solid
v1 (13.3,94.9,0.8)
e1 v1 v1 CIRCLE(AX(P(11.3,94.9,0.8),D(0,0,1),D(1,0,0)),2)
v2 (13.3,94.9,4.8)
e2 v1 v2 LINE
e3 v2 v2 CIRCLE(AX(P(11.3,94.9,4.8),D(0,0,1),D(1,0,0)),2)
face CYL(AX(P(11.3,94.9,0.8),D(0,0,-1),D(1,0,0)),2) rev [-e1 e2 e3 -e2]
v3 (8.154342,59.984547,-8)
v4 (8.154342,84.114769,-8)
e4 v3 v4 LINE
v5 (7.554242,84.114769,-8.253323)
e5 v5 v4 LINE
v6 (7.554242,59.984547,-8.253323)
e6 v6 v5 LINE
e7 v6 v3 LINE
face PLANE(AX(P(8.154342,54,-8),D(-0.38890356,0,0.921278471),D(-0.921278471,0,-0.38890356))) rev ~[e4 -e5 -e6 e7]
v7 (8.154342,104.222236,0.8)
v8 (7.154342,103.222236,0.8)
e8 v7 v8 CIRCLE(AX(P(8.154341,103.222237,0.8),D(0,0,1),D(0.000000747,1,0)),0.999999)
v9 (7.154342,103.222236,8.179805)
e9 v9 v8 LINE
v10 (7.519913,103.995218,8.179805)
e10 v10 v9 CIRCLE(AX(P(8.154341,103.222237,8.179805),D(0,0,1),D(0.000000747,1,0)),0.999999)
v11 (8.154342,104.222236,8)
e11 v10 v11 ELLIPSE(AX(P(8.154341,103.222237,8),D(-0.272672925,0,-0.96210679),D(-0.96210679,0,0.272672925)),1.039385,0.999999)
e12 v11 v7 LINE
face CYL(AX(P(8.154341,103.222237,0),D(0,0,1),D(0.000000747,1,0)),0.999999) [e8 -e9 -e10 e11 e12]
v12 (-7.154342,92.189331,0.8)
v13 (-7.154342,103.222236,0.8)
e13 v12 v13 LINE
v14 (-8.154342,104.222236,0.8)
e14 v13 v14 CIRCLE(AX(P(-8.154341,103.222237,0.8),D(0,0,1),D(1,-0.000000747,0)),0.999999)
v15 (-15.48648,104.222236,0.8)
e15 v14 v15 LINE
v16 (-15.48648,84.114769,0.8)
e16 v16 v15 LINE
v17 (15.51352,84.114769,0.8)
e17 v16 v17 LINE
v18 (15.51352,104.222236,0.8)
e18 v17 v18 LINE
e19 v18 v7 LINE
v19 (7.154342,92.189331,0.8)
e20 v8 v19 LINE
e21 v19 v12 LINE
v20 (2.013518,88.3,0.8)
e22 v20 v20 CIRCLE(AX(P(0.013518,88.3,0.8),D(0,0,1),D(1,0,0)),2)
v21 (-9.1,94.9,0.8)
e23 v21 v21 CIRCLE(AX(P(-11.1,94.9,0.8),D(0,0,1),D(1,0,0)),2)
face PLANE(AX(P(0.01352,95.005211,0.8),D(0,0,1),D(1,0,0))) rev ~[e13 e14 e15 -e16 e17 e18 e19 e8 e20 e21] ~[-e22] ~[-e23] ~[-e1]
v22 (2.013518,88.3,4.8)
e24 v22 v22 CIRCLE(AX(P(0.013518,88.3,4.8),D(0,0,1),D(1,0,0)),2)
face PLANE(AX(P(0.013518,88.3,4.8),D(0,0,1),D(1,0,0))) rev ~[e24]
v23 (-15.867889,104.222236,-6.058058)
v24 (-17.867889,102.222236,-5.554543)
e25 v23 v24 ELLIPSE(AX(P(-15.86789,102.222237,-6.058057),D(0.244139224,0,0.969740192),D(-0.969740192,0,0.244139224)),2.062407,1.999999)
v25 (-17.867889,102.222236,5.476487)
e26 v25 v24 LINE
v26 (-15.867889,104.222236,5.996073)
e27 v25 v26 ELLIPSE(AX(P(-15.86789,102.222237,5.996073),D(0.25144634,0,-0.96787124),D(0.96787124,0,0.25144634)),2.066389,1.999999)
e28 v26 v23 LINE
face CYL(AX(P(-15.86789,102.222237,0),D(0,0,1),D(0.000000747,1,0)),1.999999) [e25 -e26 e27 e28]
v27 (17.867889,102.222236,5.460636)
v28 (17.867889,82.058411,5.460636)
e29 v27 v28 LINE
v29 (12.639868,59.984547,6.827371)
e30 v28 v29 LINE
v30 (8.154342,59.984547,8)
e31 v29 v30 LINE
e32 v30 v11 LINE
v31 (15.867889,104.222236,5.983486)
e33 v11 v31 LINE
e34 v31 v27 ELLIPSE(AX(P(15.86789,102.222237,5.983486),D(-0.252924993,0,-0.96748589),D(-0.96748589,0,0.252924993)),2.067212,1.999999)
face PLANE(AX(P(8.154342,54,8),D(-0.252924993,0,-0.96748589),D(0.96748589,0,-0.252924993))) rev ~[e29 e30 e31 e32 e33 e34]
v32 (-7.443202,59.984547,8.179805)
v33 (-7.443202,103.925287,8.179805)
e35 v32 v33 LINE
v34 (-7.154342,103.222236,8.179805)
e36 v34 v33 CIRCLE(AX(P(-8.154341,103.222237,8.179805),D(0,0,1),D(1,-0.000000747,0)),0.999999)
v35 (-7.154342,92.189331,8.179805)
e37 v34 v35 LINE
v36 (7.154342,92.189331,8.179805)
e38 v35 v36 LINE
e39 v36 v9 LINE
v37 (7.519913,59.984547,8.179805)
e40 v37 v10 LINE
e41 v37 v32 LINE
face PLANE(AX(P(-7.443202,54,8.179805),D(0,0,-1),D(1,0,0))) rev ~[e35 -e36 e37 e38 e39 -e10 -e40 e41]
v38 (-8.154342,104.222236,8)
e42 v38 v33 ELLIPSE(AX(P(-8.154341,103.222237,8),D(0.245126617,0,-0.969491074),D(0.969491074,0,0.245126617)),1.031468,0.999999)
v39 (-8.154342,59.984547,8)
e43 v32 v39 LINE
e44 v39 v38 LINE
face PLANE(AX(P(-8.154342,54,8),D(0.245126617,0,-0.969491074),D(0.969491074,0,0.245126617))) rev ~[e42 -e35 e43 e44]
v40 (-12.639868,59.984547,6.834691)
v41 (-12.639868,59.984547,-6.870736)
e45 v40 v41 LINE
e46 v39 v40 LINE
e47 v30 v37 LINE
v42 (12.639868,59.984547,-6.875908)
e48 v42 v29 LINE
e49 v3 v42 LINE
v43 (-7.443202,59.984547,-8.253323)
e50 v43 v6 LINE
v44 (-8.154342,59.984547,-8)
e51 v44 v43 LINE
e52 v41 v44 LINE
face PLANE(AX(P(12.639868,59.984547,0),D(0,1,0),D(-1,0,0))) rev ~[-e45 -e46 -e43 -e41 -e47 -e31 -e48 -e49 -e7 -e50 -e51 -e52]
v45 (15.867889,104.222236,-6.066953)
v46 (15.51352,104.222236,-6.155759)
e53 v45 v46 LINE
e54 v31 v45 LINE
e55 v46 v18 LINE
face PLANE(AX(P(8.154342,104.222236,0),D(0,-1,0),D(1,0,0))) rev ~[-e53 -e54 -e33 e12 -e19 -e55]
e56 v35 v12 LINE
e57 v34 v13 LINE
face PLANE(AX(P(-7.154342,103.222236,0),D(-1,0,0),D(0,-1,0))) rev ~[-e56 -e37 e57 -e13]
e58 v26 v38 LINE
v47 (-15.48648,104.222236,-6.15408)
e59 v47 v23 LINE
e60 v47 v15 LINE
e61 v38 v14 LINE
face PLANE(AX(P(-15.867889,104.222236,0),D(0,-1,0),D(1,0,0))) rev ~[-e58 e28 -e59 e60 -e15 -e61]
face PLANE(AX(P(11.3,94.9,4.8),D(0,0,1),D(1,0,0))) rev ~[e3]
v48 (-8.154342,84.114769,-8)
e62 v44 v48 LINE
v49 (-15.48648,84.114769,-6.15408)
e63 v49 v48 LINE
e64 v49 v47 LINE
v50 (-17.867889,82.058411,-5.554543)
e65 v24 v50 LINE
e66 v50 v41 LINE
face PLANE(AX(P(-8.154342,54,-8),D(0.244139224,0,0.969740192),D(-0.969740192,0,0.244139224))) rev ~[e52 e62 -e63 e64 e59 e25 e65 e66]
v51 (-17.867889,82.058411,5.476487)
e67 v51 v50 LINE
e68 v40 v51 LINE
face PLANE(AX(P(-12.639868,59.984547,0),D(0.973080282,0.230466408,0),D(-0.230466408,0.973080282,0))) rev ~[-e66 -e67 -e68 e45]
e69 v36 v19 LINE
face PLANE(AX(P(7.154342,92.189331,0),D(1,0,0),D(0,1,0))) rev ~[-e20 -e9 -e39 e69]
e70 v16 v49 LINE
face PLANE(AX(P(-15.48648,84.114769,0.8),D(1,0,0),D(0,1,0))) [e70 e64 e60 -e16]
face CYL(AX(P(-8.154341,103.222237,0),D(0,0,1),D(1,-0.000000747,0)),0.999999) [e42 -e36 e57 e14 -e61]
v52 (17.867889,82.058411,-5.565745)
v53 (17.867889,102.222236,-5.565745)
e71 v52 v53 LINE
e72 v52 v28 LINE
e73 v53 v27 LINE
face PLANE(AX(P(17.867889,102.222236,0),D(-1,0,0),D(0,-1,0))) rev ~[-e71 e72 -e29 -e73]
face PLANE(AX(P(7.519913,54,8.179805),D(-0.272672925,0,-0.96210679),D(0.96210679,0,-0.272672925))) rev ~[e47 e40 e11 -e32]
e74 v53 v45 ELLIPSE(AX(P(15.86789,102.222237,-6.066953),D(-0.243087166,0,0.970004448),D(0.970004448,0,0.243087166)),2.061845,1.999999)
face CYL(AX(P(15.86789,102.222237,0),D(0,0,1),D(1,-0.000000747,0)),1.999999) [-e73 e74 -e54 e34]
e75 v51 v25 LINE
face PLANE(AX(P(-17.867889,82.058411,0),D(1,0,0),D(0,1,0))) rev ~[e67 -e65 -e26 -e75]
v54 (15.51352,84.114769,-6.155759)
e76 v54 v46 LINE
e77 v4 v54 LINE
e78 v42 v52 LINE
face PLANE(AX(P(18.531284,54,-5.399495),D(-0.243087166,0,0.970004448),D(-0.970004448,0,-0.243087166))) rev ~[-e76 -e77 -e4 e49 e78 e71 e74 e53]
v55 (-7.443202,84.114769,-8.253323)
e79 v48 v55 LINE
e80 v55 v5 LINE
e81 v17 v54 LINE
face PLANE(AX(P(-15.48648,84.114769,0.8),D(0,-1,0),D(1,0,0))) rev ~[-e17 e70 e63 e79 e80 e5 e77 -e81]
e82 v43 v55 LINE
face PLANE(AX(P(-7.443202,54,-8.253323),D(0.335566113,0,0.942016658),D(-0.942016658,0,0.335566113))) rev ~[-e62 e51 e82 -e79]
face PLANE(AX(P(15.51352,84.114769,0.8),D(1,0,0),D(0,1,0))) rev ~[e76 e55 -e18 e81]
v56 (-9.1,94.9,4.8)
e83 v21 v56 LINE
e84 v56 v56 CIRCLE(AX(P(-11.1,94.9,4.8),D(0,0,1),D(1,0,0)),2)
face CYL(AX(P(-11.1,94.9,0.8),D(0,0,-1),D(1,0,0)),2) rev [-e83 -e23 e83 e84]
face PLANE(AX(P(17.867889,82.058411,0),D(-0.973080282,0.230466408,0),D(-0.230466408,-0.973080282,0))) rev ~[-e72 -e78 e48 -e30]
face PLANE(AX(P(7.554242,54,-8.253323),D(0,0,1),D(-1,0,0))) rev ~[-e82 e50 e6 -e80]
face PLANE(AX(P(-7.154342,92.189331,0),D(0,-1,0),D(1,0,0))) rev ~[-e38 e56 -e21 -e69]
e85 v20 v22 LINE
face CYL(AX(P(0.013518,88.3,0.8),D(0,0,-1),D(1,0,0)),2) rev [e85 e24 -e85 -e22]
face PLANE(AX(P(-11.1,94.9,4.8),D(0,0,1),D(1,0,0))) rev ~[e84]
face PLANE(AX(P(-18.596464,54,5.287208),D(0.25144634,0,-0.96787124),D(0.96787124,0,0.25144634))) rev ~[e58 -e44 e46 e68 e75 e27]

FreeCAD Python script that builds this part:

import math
import FreeCAD as App
import Part
import Sketcher

V = App.Vector


def add_polygon(sketch, points):
    """Adds a closed chain of lines whose ends are joined by coincident constraints."""
    first, n = sketch.GeometryCount, len(points)
    for a, b in zip(points, points[1:] + points[:1]):
        sketch.addGeometry(Part.LineSegment(App.Vector(*a, 0), App.Vector(*b, 0)), False)
    for i in range(n):
        sketch.addConstraint(Sketcher.Constraint("Coincident", first + i, 2, first + (i + 1) % n, 1))

doc = App.newDocument("Part")
body = doc.addObject("PartDesign::Body", "Body")

# Sketch on XY plane
sketch1 = body.newObject("Sketcher::SketchObject", "Sketch")
sketch1.AttachmentSupport = (doc.getObject("XY_Plane"), [""])
sketch1.MapMode = "FlatFace"
sketch1.addGeometry(Part.LineSegment(V(-12.6, 60, 0), V(12.6, 60, 0)), False)
sketch1.addGeometry(Part.LineSegment(V(12.6, 60, 0), V(17.9, 82.1, 0)), False)
sketch1.addGeometry(Part.LineSegment(V(17.9, 82.1, 0), V(17.9, 102.2, 0)), False)
sketch1.addGeometry(Part.ArcOfCircle(Part.Circle(V(15.9, 102.2, 0), V(0, 0, 1), 2), math.radians(0), math.radians(90)), False)
sketch1.addGeometry(Part.LineSegment(V(15.9, 104.2, 0), V(8.2, 104.2, 0)), False)
sketch1.addGeometry(Part.ArcOfCircle(Part.Circle(V(8.2, 103.2, 0), V(0, 0, 1), 1), math.radians(90), math.radians(180)), False)
sketch1.addGeometry(Part.LineSegment(V(7.2, 103.2, 0), V(7.2, 92.2, 0)), False)
sketch1.addGeometry(Part.LineSegment(V(7.2, 92.2, 0), V(-7.2, 92.2, 0)), False)
sketch1.addGeometry(Part.LineSegment(V(-7.2, 92.2, 0), V(-7.2, 103.2, 0)), False)
sketch1.addGeometry(Part.ArcOfCircle(Part.Circle(V(-8.2, 103.2, 0), V(0, 0, 1), 1), math.radians(0), math.radians(90)), False)
sketch1.addGeometry(Part.LineSegment(V(-8.2, 104.2, 0), V(-15.9, 104.2, 0)), False)
sketch1.addGeometry(Part.ArcOfCircle(Part.Circle(V(-15.9, 102.2, 0), V(0, 0, 1), 2), math.radians(90), math.radians(180)), False)
sketch1.addGeometry(Part.LineSegment(V(-17.9, 102.2, 0), V(-17.9, 82.1, 0)), False)
sketch1.addGeometry(Part.LineSegment(V(-17.9, 82.1, 0), V(-12.6, 60, 0)), False)
sketch1.addConstraint(Sketcher.Constraint("Coincident", 0, 2, 1, 1))
sketch1.addConstraint(Sketcher.Constraint("Coincident", 1, 2, 2, 1))
sketch1.addConstraint(Sketcher.Constraint("Tangent", 2, 2, 3, 1))
sketch1.addConstraint(Sketcher.Constraint("Tangent", 3, 2, 4, 1))
sketch1.addConstraint(Sketcher.Constraint("Tangent", 4, 2, 5, 1))
sketch1.addConstraint(Sketcher.Constraint("Tangent", 5, 2, 6, 1))
sketch1.addConstraint(Sketcher.Constraint("Coincident", 6, 2, 7, 1))
sketch1.addConstraint(Sketcher.Constraint("Coincident", 7, 2, 8, 1))
sketch1.addConstraint(Sketcher.Constraint("Tangent", 8, 2, 9, 1))
sketch1.addConstraint(Sketcher.Constraint("Tangent", 9, 2, 10, 1))
sketch1.addConstraint(Sketcher.Constraint("Tangent", 10, 2, 11, 1))
sketch1.addConstraint(Sketcher.Constraint("Tangent", 11, 2, 12, 1))
sketch1.addConstraint(Sketcher.Constraint("Coincident", 12, 2, 13, 1))
sketch1.addConstraint(Sketcher.Constraint("Coincident", 13, 2, 0, 1))
sketch1.addConstraint(Sketcher.Constraint("Horizontal", 0))
sketch1.addConstraint(Sketcher.Constraint("Vertical", 2))
sketch1.addConstraint(Sketcher.Constraint("Horizontal", 4))
sketch1.addConstraint(Sketcher.Constraint("Vertical", 6))
sketch1.addConstraint(Sketcher.Constraint("Horizontal", 7))
sketch1.addConstraint(Sketcher.Constraint("Vertical", 8))
sketch1.addConstraint(Sketcher.Constraint("Horizontal", 10))
sketch1.addConstraint(Sketcher.Constraint("Vertical", 12))
sketch1.addConstraint(Sketcher.Constraint("Equal", 5, 9))
sketch1.addConstraint(Sketcher.Constraint("Equal", 3, 11))
sketch1.addConstraint(Sketcher.Constraint("Symmetric", 5, 3, 9, 3, -2))
sketch1.addConstraint(Sketcher.Constraint("Symmetric", 1, 2, 12, 2, -2))
sketch1.addConstraint(Sketcher.Constraint("Equal", 1, 13))
sketch1.addConstraint(Sketcher.Constraint("Radius", 3, 1.999999))
sketch1.addConstraint(Sketcher.Constraint("Radius", 5, 0.999999))
sketch1.addConstraint(Sketcher.Constraint("DistanceX", 0, 1, 0, 2, 25.279736))
sketch1.addConstraint(Sketcher.Constraint("DistanceX", 4, 2, 4, 1, 7.713547))
sketch1.addConstraint(Sketcher.Constraint("DistanceX", 7, 2, 7, 1, 14.308684))
sketch1.addConstraint(Sketcher.Constraint("DistanceY", 2, 1, 2, 2, 20.163825))
sketch1.addConstraint(Sketcher.Constraint("DistanceY", 6, 2, 6, 1, 11.032905))
sketch1.addConstraint(Sketcher.Constraint("DistanceY", -1, 1, 1, 2, 82.058411))
sketch1.addConstraint(Sketcher.Constraint("DistanceY", 0, 2, 3, 3, 42.23769))
pad1 = body.newObject("PartDesign::Pad", "Pad")
pad1.Profile = sketch1
pad1.Length = 24
pad1.Midplane = True

# Sketch on XZ plane
sketch2 = body.newObject("Sketcher::SketchObject", "Sketch001")
sketch2.AttachmentSupport = (doc.getObject("XZ_Plane"), [""])
sketch2.MapMode = "FlatFace"
sketch2.AttachmentOffset = App.Placement(V(0, 0, -54), App.Rotation())
add_polygon(sketch2, [(-22.1, 13.8), (-22.1, -17.7), (22.7, -17.7), (22.7, 13.8)])  # lines 0-3
add_polygon(sketch2, [(-18.6, -5.4), (-18.6, 5.3), (-8.2, 8), (-7.4, 8.2), (7.5, 8.2), (8.2, 8), (18.5, 5.3), (18.5, -5.4), (8.2, -8), (7.6, -8.3), (-7.4, -8.3), (-8.2, -8)])  # lines 4-15
sketch2.addConstraint(Sketcher.Constraint("Vertical", 0))
sketch2.addConstraint(Sketcher.Constraint("Horizontal", 1))
sketch2.addConstraint(Sketcher.Constraint("Vertical", 2))
sketch2.addConstraint(Sketcher.Constraint("Horizontal", 3))
sketch2.addConstraint(Sketcher.Constraint("Vertical", 4))
sketch2.addConstraint(Sketcher.Constraint("Horizontal", 7))
sketch2.addConstraint(Sketcher.Constraint("Vertical", 10))
sketch2.addConstraint(Sketcher.Constraint("Horizontal", 13))
sketch2.addConstraint(Sketcher.Constraint("Symmetric", 5, 2, 11, 2, -1, 1))
sketch2.addConstraint(Sketcher.Constraint("Symmetric", 8, 2, 14, 2, -1, 1))
sketch2.addConstraint(Sketcher.Constraint("Symmetric", 5, 2, 8, 2, -2))
sketch2.addConstraint(Sketcher.Constraint("Horizontal", 4, 2, 9, 2))
sketch2.addConstraint(Sketcher.Constraint("Vertical", 6, 2, 13, 2))
sketch2.addConstraint(Sketcher.Constraint("DistanceY", -1, 1, 5, 2, 8.0))
sketch2.addConstraint(Sketcher.Constraint("DistanceX", -1, 1, 1, 2, 22.658901))
sketch2.addConstraint(Sketcher.Constraint("DistanceY", 10, 2, 7, 2, 13.5793))
sketch2.addConstraint(Sketcher.Constraint("DistanceX", 12, 2, 11, 2, 0.6001))
sketch2.addConstraint(Sketcher.Constraint("Distance", 5, 10.788751))
sketch2.addConstraint(Sketcher.Constraint("Distance", 6, 0.733519))
sketch2.addConstraint(Sketcher.Constraint("Distance", 11, 10.697829))
sketch2.addConstraint(Sketcher.Constraint("Distance", 15, 10.767958))
sketch2.addConstraint(Sketcher.Constraint("DistanceX", 1, 1, 1, 2, 44.776796))
sketch2.addConstraint(Sketcher.Constraint("DistanceX", 7, 1, 7, 2, 14.963115))
sketch2.addConstraint(Sketcher.Constraint("DistanceX", 13, 2, 13, 1, 14.997444))
sketch2.addConstraint(Sketcher.Constraint("DistanceY", 0, 2, 0, 1, 31.557333))
sketch2.addConstraint(Sketcher.Constraint("DistanceY", 4, 1, 4, 2, 10.658327))
sketch2.addConstraint(Sketcher.Constraint("DistanceY", 10, 2, 10, 1, 10.686703))
sketch2.addConstraint(Sketcher.Constraint("DistanceY", 4, 2, 3, 2, 8.526709))
sketch2.addConstraint(Sketcher.Constraint("DistanceY", 12, 2, 10, 2, 2.853828))
pocket1 = body.newObject("PartDesign::Pocket", "Pocket")
pocket1.Profile = sketch2
pocket1.Length = 62

# Sketch on XY plane
sketch3 = body.newObject("Sketcher::SketchObject", "Sketch002")
sketch3.AttachmentSupport = (doc.getObject("XY_Plane"), [""])
sketch3.MapMode = "FlatFace"
sketch3.AttachmentOffset = App.Placement(V(0, 0, 0.8), App.Rotation())
add_polygon(sketch3, [(-15, 106), (-15, 84), (16, 84), (16, 106)])  # lines 0-3
sketch3.addConstraint(Sketcher.Constraint("Vertical", 0))
sketch3.addConstraint(Sketcher.Constraint("Horizontal", 1))
sketch3.addConstraint(Sketcher.Constraint("Vertical", 2))
sketch3.addConstraint(Sketcher.Constraint("Horizontal", 3))
sketch3.addConstraint(Sketcher.Constraint("DistanceX", 1, 1, 1, 2, 31.0))
sketch3.addConstraint(Sketcher.Constraint("DistanceY", 0, 2, 0, 1, 21.780884))
sketch3.addConstraint(Sketcher.Constraint("DistanceX", 0, 2, -1, 1, 15.48648))
sketch3.addConstraint(Sketcher.Constraint("DistanceY", -1, 1, 0, 2, 84.114769))
pocket2 = body.newObject("PartDesign::Pocket", "Pocket001")
pocket2.Profile = sketch3
pocket2.Length = 17

# Sketch on XY plane
sketch4 = body.newObject("Sketcher::SketchObject", "Sketch003")
sketch4.AttachmentSupport = (doc.getObject("XY_Plane"), [""])
sketch4.MapMode = "FlatFace"
sketch4.AttachmentOffset = App.Placement(V(0, 0, 0.8), App.Rotation())
sketch4.addGeometry(Part.Circle(V(-11.1, 94.9, 0), V(0, 0, 1), 2), False)
sketch4.addGeometry(Part.Circle(V(11.3, 94.9, 0), V(0, 0, 1), 2), False)
sketch4.addGeometry(Part.Circle(V(0, 88.3, 0), V(0, 0, 1), 2), False)
sketch4.addConstraint(Sketcher.Constraint("Equal", 0, 1))
sketch4.addConstraint(Sketcher.Constraint("Equal", 1, 2))
sketch4.addConstraint(Sketcher.Constraint("Horizontal", 0, 3, 1, 3))
sketch4.addConstraint(Sketcher.Constraint("Diameter", 0, 4.0))
sketch4.addConstraint(Sketcher.Constraint("DistanceX", 0, 3, -1, 1, 11.1))
sketch4.addConstraint(Sketcher.Constraint("DistanceY", -1, 1, 0, 3, 94.9))
sketch4.addConstraint(Sketcher.Constraint("DistanceX", -1, 1, 1, 3, 11.3))
sketch4.addConstraint(Sketcher.Constraint("DistanceY", -1, 1, 2, 3, 88.3))
sketch4.addConstraint(Sketcher.Constraint("DistanceX", -1, 1, 2, 3, 0.013518))
pocket3 = body.newObject("PartDesign::Pocket", "Pocket002")
pocket3.Profile = sketch4
pocket3.Length = 4
pocket3.Reversed = True

doc.recompute()
